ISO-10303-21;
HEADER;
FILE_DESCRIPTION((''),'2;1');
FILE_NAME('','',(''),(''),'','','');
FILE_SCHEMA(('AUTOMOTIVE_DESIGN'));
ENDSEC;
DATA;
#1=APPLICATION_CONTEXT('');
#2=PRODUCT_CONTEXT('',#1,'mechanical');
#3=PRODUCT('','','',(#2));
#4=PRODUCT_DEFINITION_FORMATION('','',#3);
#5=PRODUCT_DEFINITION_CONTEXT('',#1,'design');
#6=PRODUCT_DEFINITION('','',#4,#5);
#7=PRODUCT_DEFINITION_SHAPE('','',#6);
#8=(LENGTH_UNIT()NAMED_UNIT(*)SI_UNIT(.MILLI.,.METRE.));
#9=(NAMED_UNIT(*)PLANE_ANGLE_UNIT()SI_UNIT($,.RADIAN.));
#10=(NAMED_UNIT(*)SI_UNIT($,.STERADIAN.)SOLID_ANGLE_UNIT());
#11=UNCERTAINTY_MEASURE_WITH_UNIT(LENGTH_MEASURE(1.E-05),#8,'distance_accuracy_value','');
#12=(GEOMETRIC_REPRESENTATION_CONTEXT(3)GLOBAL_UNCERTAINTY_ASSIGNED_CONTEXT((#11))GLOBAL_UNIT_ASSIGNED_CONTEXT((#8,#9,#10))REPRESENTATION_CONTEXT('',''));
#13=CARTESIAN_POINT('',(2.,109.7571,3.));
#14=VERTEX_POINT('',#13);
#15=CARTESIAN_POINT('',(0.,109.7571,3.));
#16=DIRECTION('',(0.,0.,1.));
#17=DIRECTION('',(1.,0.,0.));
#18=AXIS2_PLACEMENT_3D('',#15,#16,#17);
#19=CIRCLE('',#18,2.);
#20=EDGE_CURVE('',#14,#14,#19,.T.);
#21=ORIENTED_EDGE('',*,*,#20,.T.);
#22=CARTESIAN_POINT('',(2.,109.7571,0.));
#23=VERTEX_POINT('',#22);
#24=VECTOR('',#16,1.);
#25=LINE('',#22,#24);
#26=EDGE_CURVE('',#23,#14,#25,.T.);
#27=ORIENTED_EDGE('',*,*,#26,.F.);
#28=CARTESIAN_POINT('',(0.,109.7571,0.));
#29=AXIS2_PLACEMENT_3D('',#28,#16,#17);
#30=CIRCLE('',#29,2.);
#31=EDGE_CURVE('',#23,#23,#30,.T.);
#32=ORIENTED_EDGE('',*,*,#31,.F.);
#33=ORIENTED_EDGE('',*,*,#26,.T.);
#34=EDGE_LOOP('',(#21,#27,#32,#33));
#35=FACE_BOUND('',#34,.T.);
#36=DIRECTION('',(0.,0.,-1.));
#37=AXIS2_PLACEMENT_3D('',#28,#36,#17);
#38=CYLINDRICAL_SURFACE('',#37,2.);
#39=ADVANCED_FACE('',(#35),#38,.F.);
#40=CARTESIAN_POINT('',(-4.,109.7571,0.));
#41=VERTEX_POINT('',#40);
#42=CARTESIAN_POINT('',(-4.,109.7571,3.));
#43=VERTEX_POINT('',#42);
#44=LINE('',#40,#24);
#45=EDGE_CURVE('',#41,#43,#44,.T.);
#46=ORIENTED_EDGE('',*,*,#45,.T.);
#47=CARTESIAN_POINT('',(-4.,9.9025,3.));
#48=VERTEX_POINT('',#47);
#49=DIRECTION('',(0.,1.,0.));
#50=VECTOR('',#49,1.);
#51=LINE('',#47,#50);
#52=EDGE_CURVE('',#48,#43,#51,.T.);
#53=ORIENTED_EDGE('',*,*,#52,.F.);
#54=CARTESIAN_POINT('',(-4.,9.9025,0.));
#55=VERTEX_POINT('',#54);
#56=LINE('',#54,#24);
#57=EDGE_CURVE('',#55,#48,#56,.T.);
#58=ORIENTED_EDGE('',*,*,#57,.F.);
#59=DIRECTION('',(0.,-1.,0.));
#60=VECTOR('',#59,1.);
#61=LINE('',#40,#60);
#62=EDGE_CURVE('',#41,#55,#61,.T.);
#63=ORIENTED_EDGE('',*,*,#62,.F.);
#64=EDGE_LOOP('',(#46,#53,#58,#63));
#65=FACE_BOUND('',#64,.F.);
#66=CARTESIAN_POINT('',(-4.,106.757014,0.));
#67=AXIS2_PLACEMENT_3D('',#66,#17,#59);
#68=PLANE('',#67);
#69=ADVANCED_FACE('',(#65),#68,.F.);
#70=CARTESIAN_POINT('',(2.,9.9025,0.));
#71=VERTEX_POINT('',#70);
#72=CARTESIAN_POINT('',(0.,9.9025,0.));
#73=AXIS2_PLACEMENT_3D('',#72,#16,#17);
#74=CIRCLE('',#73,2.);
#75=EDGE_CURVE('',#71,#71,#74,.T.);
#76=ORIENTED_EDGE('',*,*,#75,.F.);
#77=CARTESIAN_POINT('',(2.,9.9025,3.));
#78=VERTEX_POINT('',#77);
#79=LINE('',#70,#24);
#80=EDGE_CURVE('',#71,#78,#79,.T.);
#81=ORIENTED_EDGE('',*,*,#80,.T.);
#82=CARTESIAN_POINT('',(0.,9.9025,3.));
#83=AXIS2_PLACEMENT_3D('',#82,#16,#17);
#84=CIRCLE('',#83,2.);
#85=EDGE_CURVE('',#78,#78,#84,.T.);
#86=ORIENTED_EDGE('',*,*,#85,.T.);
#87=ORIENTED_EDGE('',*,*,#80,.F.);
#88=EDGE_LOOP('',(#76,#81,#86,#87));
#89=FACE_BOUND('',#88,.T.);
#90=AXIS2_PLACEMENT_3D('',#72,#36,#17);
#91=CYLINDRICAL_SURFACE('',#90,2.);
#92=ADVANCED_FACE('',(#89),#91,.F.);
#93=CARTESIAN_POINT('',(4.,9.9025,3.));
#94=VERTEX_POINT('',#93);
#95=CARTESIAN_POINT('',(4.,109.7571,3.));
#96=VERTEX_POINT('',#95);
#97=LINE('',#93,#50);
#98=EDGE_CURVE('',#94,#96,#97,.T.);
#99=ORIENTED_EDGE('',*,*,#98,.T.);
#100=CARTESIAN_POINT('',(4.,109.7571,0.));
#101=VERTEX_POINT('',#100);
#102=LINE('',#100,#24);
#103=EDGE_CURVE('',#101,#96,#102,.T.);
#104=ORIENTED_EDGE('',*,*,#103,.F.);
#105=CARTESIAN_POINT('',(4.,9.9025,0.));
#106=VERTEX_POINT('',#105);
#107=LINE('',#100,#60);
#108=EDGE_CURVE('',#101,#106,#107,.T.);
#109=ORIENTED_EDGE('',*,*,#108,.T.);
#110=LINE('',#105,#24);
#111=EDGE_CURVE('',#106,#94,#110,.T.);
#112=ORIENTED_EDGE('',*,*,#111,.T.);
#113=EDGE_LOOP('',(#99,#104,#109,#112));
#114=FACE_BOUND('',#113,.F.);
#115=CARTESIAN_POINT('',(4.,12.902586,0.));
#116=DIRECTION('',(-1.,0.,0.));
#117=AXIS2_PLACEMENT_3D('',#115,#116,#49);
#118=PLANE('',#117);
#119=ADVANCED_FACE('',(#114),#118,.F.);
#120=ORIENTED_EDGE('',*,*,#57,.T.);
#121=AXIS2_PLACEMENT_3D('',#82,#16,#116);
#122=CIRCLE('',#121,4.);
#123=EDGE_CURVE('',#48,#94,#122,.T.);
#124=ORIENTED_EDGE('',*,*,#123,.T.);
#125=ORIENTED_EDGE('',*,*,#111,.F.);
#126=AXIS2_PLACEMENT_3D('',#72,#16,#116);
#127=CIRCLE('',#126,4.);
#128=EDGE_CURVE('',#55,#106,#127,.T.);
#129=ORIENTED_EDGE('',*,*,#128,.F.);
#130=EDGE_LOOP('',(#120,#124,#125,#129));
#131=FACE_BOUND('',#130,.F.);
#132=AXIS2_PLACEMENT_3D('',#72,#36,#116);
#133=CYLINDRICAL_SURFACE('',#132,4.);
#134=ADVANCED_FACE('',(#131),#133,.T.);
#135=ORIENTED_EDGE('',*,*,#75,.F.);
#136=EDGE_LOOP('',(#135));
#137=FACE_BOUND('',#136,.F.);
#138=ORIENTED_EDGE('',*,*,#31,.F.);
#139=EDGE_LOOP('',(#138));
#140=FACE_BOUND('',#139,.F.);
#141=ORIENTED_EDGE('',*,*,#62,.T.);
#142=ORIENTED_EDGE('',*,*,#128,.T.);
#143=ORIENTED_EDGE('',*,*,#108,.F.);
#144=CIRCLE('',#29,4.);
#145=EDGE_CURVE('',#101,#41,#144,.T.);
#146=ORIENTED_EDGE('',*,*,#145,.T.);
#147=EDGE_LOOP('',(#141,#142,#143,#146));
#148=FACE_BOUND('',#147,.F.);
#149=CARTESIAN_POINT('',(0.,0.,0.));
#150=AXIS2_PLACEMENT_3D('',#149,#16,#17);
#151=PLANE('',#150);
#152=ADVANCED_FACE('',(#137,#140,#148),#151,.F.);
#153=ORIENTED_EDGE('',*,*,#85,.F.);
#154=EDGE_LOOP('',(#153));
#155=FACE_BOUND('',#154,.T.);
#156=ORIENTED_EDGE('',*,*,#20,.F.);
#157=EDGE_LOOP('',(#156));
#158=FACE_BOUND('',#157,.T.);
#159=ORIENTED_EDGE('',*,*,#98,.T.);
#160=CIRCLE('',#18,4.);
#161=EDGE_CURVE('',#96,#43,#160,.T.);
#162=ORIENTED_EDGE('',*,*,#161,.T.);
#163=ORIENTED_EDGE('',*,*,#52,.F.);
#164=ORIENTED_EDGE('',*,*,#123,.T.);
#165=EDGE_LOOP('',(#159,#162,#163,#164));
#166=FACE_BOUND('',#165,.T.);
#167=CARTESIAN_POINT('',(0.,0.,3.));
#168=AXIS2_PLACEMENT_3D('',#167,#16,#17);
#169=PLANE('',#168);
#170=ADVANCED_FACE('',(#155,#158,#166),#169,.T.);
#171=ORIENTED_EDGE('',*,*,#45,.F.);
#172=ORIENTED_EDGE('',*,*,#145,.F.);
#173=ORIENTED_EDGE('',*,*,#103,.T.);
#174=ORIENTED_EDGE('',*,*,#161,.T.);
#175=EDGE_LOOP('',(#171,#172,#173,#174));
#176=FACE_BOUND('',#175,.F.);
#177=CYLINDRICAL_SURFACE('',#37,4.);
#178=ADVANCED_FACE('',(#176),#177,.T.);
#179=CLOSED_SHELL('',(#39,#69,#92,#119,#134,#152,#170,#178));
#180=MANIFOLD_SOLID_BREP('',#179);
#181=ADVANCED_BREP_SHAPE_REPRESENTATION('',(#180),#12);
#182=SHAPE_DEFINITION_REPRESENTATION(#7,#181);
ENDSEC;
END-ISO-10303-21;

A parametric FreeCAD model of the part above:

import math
import FreeCAD as App
import Part
import Sketcher
Q = App.Units.Quantity

doc = App.newDocument("Part")
params = doc.addObject("Spreadsheet::Sheet", "Params")
for row, (alias, value) in enumerate([
    ("sketch1_radius", "4 mm"),
    ("sketch1_diameter", "4 mm"),
    ("pad1_length", "3 mm"),
], start=1):
    params.set(f"A{row}", alias)
    params.set(f"B{row}", "=" + value)
    params.setAlias(f"B{row}", alias)

body = doc.addObject("PartDesign::Body", "Body")

sketch1 = body.newObject("Sketcher::SketchObject", "Sketch")
sketch1.AttachmentSupport = (doc.getObject("XY_Plane"), [""])
sketch1.MapMode = "FlatFace"
sketch1.addGeometry(Part.ArcOfCircle(Part.Circle(App.Vector(0, 9.9, 0), App.Vector(0, 0, 1), 4), math.radians(180), math.radians(360)), False)
sketch1.addGeometry(Part.LineSegment(App.Vector(4, 9.9, 0), App.Vector(4, 109.8, 0)), False)
sketch1.addGeometry(Part.ArcOfCircle(Part.Circle(App.Vector(0, 109.8, 0), App.Vector(0, 0, 1), 4), math.radians(0), math.radians(180)), False)
sketch1.addGeometry(Part.LineSegment(App.Vector(-4, 109.8, 0), App.Vector(-4, 9.9, 0)), False)
sketch1.addGeometry(Part.Circle(App.Vector(0, 109.8, 0), App.Vector(0, 0, 1), 2), False)
sketch1.addGeometry(Part.Circle(App.Vector(0, 9.9, 0), App.Vector(0, 0, 1), 2), False)
sketch1.addConstraint(Sketcher.Constraint("Tangent", 0, 2, 1, 1))
sketch1.addConstraint(Sketcher.Constraint("Tangent", 1, 2, 2, 1))
sketch1.addConstraint(Sketcher.Constraint("Tangent", 2, 2, 3, 1))
sketch1.addConstraint(Sketcher.Constraint("Tangent", 3, 2, 0, 1))
sketch1.addConstraint(Sketcher.Constraint("Vertical", 1))
sketch1.addConstraint(Sketcher.Constraint("Vertical", 3))
sketch1.addConstraint(Sketcher.Constraint("Coincident", 4, 3, 2, 3))
sketch1.addConstraint(Sketcher.Constraint("Coincident", 5, 3, 0, 3))
sketch1.addConstraint(Sketcher.Constraint("Equal", 4, 5))
sketch1.addConstraint(Sketcher.Constraint("PointOnObject", 0, 3, -2))
sketch1.addConstraint(Sketcher.Constraint("Radius", 0, Q("4 mm")))
sketch1.addConstraint(Sketcher.Constraint("Diameter", 4, Q("4 mm")))
sketch1.addConstraint(Sketcher.Constraint("DistanceY", 1, 1, 1, 2, Q("99.8546 mm")))
sketch1.addConstraint(Sketcher.Constraint("DistanceY", -1, 1, 2, 3, Q("109.757 mm")))
sketch1.setExpression("Constraints[10]", "Params.sketch1_radius")
sketch1.setExpression("Constraints[11]", "Params.sketch1_diameter")
pad1 = body.newObject("PartDesign::Pad", "Pad")
pad1.Profile = sketch1
pad1.setExpression("Length", "Params.pad1_length")

doc.recompute()
